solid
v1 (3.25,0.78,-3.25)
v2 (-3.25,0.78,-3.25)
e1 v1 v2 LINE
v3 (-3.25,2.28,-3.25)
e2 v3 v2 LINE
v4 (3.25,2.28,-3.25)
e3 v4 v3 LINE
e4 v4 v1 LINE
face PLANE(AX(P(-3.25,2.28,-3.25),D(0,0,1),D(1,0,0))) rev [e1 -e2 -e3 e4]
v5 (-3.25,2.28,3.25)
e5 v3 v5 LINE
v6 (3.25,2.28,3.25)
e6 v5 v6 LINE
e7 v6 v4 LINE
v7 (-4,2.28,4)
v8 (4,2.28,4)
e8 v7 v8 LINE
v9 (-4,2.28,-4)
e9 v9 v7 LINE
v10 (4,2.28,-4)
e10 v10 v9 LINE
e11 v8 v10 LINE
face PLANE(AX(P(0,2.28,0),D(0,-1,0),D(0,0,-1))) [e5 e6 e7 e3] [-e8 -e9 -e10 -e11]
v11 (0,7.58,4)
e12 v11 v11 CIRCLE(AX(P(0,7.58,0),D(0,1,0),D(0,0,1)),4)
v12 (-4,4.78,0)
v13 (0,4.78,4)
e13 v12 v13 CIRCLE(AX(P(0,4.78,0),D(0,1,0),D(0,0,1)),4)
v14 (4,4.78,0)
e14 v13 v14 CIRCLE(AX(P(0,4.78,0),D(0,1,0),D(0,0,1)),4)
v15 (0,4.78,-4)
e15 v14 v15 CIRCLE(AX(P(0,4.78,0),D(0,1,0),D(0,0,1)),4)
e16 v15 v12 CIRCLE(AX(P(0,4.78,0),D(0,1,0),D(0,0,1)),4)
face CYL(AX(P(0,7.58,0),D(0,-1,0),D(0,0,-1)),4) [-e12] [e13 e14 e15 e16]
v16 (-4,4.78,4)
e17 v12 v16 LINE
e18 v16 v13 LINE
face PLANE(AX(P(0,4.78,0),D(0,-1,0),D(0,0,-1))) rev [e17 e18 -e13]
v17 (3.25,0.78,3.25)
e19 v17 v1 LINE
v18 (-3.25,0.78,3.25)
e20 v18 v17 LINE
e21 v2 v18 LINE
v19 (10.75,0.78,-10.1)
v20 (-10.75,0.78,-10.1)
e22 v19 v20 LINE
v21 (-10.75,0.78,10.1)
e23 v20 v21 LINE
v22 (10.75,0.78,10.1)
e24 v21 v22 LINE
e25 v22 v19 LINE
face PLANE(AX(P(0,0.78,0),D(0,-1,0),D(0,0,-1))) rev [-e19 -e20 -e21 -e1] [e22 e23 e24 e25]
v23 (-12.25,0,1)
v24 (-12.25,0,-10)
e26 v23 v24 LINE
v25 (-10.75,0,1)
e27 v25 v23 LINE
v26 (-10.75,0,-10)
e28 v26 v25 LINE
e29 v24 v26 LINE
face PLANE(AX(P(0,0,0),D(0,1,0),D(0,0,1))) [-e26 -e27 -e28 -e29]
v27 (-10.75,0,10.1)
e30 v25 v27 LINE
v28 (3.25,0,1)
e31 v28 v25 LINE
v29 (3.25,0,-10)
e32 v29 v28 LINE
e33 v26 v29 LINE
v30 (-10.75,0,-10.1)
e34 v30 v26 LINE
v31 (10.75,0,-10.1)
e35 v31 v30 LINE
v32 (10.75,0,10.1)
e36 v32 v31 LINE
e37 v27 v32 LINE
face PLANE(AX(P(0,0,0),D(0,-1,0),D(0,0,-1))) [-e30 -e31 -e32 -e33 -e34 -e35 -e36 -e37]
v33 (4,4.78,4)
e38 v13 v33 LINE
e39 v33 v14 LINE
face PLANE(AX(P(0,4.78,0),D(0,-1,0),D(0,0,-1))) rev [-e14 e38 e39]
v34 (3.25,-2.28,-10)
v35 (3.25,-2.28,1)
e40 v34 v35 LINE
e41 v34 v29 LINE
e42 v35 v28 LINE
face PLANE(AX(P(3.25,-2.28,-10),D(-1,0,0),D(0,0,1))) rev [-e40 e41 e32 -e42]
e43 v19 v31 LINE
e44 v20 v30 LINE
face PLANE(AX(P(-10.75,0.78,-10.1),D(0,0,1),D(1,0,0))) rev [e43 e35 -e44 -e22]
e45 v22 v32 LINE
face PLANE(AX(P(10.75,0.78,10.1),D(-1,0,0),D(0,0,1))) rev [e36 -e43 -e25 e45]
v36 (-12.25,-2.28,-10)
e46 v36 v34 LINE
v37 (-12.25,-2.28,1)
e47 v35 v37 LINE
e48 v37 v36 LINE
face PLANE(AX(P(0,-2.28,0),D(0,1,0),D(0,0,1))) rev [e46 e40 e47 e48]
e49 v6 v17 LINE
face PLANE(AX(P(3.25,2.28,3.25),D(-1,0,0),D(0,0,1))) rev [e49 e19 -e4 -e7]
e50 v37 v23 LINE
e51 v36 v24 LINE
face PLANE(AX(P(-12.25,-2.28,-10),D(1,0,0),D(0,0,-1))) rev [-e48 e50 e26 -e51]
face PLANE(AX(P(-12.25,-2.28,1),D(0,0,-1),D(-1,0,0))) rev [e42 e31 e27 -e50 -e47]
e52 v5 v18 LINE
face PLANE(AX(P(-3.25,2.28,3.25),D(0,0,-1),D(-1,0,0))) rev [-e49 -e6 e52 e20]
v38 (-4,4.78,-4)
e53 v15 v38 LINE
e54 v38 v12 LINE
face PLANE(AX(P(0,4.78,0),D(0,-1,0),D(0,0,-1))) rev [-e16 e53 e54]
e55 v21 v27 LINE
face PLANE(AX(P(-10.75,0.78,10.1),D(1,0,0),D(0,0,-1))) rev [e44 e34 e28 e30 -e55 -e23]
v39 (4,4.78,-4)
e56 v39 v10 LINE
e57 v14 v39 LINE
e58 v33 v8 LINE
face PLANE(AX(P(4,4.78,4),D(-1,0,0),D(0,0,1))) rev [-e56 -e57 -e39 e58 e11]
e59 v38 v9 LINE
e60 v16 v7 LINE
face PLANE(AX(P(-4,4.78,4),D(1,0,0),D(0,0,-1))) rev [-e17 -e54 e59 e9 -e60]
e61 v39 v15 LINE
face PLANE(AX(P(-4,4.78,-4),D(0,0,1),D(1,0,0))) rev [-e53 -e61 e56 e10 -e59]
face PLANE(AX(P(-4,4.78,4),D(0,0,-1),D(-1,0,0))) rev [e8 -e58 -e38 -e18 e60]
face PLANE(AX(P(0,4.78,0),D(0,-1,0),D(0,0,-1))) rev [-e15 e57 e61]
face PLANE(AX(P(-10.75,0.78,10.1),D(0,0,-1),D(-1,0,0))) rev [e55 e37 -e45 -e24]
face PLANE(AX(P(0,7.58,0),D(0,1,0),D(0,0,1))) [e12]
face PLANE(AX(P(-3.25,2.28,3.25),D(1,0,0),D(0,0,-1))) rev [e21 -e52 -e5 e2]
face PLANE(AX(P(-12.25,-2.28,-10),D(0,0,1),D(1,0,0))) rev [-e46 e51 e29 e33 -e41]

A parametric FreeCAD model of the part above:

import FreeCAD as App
import Part
import Sketcher
from FreeCAD import Vector


def add_polygon(sketch, points):
    """Adds a closed chain of lines whose ends are joined by coincident constraints."""
    first, n = sketch.GeometryCount, len(points)
    for a, b in zip(points, points[1:] + points[:1]):
        sketch.addGeometry(Part.LineSegment(App.Vector(*a, 0), App.Vector(*b, 0)), False)
    for i in range(n):
        sketch.addConstraint(Sketcher.Constraint("Coincident", first + i, 2, first + (i + 1) % n, 1))

doc = App.newDocument("Part")
body = doc.addObject("PartDesign::Body", "Body")

sketch1 = doc.addObject("Sketcher::SketchObject", "Sketch")
body.addObject(sketch1)
sketch1.AttachmentSupport = (doc.XZ_Plane, [""])
sketch1.MapMode = "FlatFace"
add_polygon(sketch1, [(-10.75, -10.1), (-10.75, 10.1), (10.75, 10.1), (10.75, -10.1)])
sketch1.addConstraint(Sketcher.Constraint("Vertical", 0))
sketch1.addConstraint(Sketcher.Constraint("Horizontal", 1))
sketch1.addConstraint(Sketcher.Constraint("Vertical", 2))
sketch1.addConstraint(Sketcher.Constraint("Horizontal", 3))
sketch1.addConstraint(Sketcher.Constraint("Symmetric", 0, 2, 2, 2, -1, 1))
sketch1.addConstraint(Sketcher.Constraint("DistanceX", 1, 1, 1, 2, 21.5))
sketch1.addConstraint(Sketcher.Constraint("DistanceY", 0, 1, 0, 2, 20.2))
pad1 = doc.addObject("PartDesign::Pad", "Pad")
body.addObject(pad1)
pad1.Profile = sketch1
pad1.Length = 0.78
pad1.Reversed = True

sketch2 = doc.addObject("Sketcher::SketchObject", "Sketch001")
body.addObject(sketch2)
sketch2.AttachmentSupport = (doc.XZ_Plane, [""])
sketch2.MapMode = "FlatFace"
sketch2.AttachmentOffset = App.Placement(Vector(0, 0, -0.78), App.Rotation())
add_polygon(sketch2, [(-3.25, -3.25), (-3.25, 3.25), (3.25, 3.25), (3.25, -3.25)])
sketch2.addConstraint(Sketcher.Constraint("Vertical", 0))
sketch2.addConstraint(Sketcher.Constraint("Horizontal", 1))
sketch2.addConstraint(Sketcher.Constraint("Vertical", 2))
sketch2.addConstraint(Sketcher.Constraint("Horizontal", 3))
sketch2.addConstraint(Sketcher.Constraint("Symmetric", 0, 2, 2, 2, -1, 1))
sketch2.addConstraint(Sketcher.Constraint("Equal", 3, 0))
sketch2.addConstraint(Sketcher.Constraint("DistanceX", 1, 1, 1, 2, 6.5))
pad2 = doc.addObject("PartDesign::Pad", "Pad001")
body.addObject(pad2)
pad2.Profile = sketch2
pad2.Length = 1.5
pad2.Reversed = True

sketch3 = doc.addObject("Sketcher::SketchObject", "Sketch002")
body.addObject(sketch3)
sketch3.AttachmentSupport = (doc.XZ_Plane, [""])
sketch3.MapMode = "FlatFace"
sketch3.AttachmentOffset = App.Placement(Vector(0, 0, -2.28), App.Rotation())
add_polygon(sketch3, [(-4, -4), (-4, 4), (4, 4), (4, -4)])
sketch3.addConstraint(Sketcher.Constraint("Vertical", 0))
sketch3.addConstraint(Sketcher.Constraint("Horizontal", 1))
sketch3.addConstraint(Sketcher.Constraint("Vertical", 2))
sketch3.addConstraint(Sketcher.Constraint("Horizontal", 3))
sketch3.addConstraint(Sketcher.Constraint("Symmetric", 0, 2, 2, 2, -1, 1))
sketch3.addConstraint(Sketcher.Constraint("Equal", 3, 0))
sketch3.addConstraint(Sketcher.Constraint("DistanceX", 1, 1, 1, 2, 8.0))
pad3 = doc.addObject("PartDesign::Pad", "Pad002")
body.addObject(pad3)
pad3.Profile = sketch3
pad3.Length = 2.5
pad3.Reversed = True

sketch4 = doc.addObject("Sketcher::SketchObject", "Sketch003")
body.addObject(sketch4)
sketch4.AttachmentSupport = (doc.XZ_Plane, [""])
sketch4.MapMode = "FlatFace"
sketch4.AttachmentOffset = App.Placement(Vector(0, 0, -4.78), App.Rotation())
sketch4.addGeometry(Part.Circle(Vector(0, 0, 0), Vector(0, 0, 1), 4), False)
sketch4.addConstraint(Sketcher.Constraint("Coincident", 0, 3, -1, 1))
sketch4.addConstraint(Sketcher.Constraint("Diameter", 0, 8.0))
pad4 = doc.addObject("PartDesign::Pad", "Pad003")
body.addObject(pad4)
pad4.Profile = sketch4
pad4.Length = 2.8
pad4.Reversed = True

sketch5 = doc.addObject("Sketcher::SketchObject", "Sketch004")
body.addObject(sketch5)
sketch5.AttachmentSupport = (doc.XZ_Plane, [""])
sketch5.MapMode = "FlatFace"
add_polygon(sketch5, [(-12.25, 1), (-12.25, -10), (3.25, -10), (3.25, 1)])
sketch5.addConstraint(Sketcher.Constraint("Vertical", 0))
sketch5.addConstraint(Sketcher.Constraint("Horizontal", 1))
sketch5.addConstraint(Sketcher.Constraint("Vertical", 2))
sketch5.addConstraint(Sketcher.Constraint("Horizontal", 3))
sketch5.addConstraint(Sketcher.Constraint("DistanceY", 0, 2, 0, 1, 11.0))
sketch5.addConstraint(Sketcher.Constraint("DistanceX", 1, 1, 1, 2, 15.5))
sketch5.addConstraint(Sketcher.Constraint("DistanceY", 0, 2, -1, 1, 10.0))
sketch5.addConstraint(Sketcher.Constraint("DistanceX", 0, 2, -1, 1, 12.25))
pad5 = doc.addObject("PartDesign::Pad", "Pad004")
body.addObject(pad5)
pad5.Profile = sketch5
pad5.Length = 2.28

doc.recompute()
